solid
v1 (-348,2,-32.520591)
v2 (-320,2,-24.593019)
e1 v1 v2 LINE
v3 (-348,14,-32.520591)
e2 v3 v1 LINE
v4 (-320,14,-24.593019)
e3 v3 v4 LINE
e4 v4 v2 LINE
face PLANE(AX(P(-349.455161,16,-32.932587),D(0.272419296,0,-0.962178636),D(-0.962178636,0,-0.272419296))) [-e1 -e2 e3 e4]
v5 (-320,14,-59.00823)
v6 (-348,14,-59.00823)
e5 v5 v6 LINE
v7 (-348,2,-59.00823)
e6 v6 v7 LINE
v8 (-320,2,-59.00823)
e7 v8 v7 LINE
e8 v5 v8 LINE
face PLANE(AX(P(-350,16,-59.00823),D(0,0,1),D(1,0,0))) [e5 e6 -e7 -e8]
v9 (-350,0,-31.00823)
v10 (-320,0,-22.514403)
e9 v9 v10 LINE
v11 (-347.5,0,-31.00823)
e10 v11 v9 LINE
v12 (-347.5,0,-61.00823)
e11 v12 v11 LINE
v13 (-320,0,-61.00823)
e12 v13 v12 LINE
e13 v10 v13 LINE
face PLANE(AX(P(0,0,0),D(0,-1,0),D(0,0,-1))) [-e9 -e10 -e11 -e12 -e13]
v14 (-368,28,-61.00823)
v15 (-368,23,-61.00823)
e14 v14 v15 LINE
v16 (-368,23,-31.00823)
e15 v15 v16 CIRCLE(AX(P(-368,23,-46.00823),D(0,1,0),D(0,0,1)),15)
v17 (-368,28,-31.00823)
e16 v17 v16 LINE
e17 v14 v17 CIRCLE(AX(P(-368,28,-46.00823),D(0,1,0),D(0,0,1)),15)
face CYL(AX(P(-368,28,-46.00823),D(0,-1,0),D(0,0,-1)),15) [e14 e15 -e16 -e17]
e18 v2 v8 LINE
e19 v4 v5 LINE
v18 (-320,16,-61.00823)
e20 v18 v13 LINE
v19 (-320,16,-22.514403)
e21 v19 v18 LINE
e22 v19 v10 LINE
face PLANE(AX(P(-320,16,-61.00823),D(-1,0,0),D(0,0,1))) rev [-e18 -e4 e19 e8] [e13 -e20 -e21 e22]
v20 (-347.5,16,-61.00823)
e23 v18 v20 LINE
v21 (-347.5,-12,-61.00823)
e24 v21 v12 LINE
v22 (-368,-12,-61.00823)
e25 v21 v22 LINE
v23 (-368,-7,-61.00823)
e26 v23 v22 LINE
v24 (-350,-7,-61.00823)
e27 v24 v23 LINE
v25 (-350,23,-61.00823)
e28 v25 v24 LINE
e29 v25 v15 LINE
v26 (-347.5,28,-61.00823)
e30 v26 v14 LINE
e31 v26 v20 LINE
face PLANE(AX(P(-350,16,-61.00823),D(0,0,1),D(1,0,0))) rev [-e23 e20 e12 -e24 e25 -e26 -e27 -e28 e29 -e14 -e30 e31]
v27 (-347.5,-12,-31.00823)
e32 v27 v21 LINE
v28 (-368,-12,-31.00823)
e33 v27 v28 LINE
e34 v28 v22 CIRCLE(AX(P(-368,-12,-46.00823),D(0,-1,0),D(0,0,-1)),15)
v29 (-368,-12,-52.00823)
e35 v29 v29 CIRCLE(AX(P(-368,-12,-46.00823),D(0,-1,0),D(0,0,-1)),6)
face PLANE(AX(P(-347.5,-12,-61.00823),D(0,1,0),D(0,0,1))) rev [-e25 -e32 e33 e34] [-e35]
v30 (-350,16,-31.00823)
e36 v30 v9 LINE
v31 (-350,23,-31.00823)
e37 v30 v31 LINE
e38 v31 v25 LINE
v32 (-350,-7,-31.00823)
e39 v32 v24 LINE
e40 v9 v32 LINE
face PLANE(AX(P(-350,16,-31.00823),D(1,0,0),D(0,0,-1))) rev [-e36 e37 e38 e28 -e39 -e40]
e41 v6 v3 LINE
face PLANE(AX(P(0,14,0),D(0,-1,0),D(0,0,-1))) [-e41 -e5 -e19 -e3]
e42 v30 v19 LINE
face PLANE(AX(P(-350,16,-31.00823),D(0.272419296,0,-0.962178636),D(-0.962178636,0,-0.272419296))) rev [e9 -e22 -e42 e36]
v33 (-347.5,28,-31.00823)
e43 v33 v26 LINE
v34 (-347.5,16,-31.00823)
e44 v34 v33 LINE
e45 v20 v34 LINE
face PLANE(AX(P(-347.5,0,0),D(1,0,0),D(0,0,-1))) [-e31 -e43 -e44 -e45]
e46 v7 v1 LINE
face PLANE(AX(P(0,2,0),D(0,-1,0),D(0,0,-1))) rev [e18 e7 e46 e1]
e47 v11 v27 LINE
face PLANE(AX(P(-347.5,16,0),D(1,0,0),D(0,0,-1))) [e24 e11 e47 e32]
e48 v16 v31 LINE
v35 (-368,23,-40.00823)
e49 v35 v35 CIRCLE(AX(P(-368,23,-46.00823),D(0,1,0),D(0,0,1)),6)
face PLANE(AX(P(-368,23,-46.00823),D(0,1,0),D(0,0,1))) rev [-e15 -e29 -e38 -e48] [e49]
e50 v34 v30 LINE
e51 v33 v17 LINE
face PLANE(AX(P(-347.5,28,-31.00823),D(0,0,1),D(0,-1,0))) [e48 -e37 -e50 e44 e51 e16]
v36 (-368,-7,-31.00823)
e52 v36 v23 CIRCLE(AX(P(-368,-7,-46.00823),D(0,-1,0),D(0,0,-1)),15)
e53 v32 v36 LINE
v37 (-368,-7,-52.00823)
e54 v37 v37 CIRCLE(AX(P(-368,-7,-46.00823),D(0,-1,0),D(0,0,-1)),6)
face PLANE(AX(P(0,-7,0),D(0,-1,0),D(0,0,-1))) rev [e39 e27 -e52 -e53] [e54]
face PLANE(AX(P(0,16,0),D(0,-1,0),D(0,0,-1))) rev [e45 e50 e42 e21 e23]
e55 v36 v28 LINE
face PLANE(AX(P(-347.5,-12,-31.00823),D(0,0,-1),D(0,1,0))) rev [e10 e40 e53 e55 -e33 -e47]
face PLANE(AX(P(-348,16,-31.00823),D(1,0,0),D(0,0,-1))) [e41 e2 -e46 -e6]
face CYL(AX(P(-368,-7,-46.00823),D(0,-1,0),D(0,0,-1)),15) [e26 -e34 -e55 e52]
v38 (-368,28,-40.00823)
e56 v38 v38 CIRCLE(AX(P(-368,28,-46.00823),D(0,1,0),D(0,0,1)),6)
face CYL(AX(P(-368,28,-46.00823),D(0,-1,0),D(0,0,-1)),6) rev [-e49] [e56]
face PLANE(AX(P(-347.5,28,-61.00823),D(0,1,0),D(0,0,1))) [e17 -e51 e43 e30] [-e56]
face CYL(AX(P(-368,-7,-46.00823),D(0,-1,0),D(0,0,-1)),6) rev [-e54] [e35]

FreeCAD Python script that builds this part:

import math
import FreeCAD as App
import Part
import Sketcher
from FreeCAD import Vector


def faces_at(feature, points):
    """Names of the faces that lie closest to the given points."""
    faces = feature.Shape.Faces
    near = lambda p: min(range(len(faces)), key=lambda i: faces[i].distToShape(Part.Vertex(*p))[0])
    return sorted({f"Face{near(p) + 1}" for p in points})

doc = App.newDocument("Part")
body = doc.addObject("PartDesign::Body", "Body")

# Sketch on XZ plane
sketch1 = body.newObject("Sketcher::SketchObject", "Sketch")
sketch1.AttachmentSupport = (doc.getObject("XZ_Plane"), [""])
sketch1.MapMode = "FlatFace"
sketch1.addGeometry([
    Part.LineSegment(Vector(-350, -31, 0), Vector(-320, -23, 0)),
    Part.LineSegment(Vector(-320, -23, 0), Vector(-320, -61, 0)),
    Part.LineSegment(Vector(-320, -61, 0), Vector(-350, -61, 0)),
    Part.LineSegment(Vector(-350, -61, 0), Vector(-350, -31, 0)),
], False)
sketch1.addConstraint([
    Sketcher.Constraint("Coincident", 0, 2, 1, 1),
    Sketcher.Constraint("Coincident", 1, 2, 2, 1),
    Sketcher.Constraint("Coincident", 2, 2, 3, 1),
    Sketcher.Constraint("Coincident", 3, 2, 0, 1),
    Sketcher.Constraint("Vertical", 1),
    Sketcher.Constraint("Horizontal", 2),
    Sketcher.Constraint("Vertical", 3),
    Sketcher.Constraint("Equal", 2, 3),
    Sketcher.Constraint("DistanceX", 2, 2, 2, 1, 30.0),
    Sketcher.Constraint("DistanceX", 0, 2, -1, 1, 320.0),
    Sketcher.Constraint("Distance", 0, 31.179241),
    Sketcher.Constraint("DistanceY", 1, 2, -1, 1, 61.00823),
])
pad1 = body.newObject("PartDesign::Pad", "Pad")
pad1.Profile = sketch1
pad1.Length = 16
pad1.Reversed = True
doc.recompute()

thickness = body.newObject("PartDesign::Thickness", "Thickness")
thickness.Base = (pad1, faces_at(pad1, [(-320, 8, -41.761)]))
thickness.Value = 2
thickness.Reversed = True
thickness.Join = "Intersection"
body2 = doc.addObject("PartDesign::Body", "Body001")

# Sketch on XZ plane
sketch2 = body2.newObject("Sketcher::SketchObject", "Sketch001")
sketch2.AttachmentSupport = (doc.getObject("XZ_Plane001"), [""])
sketch2.MapMode = "FlatFace"
sketch2.AttachmentOffset = App.Placement(Vector(0, 0, -23), App.Rotation())
sketch2.addGeometry([
    Part.LineSegment(Vector(-350, -61, 0), Vector(-368, -61, 0)),  # 0
    Part.ArcOfCircle(Part.Circle(Vector(-368, -46, 0), Vector(0, 0, 1), 15), math.radians(90), math.radians(270)),  # 1
    Part.LineSegment(Vector(-368, -31, 0), Vector(-350, -31, 0)),  # 2
    Part.LineSegment(Vector(-350, -31, 0), Vector(-350, -61, 0)),  # 3
    Part.Circle(Vector(-368, -46, 0), Vector(0, 0, 1), 6),  # 4
], False)
sketch2.addConstraint([
    Sketcher.Constraint("Tangent", 0, 2, 1, 2),
    Sketcher.Constraint("Tangent", 1, 1, 2, 1),
    Sketcher.Constraint("Coincident", 2, 2, 3, 1),
    Sketcher.Constraint("Coincident", 3, 2, 0, 1),
    Sketcher.Constraint("Horizontal", 0),
    Sketcher.Constraint("Horizontal", 2),
    Sketcher.Constraint("Vertical", 3),
    Sketcher.Constraint("Coincident", 4, 3, 1, 3),
    Sketcher.Constraint("Diameter", 4, 12.0),
    Sketcher.Constraint("Radius", 1, 15.0),
    Sketcher.Constraint("DistanceX", 0, 2, 0, 1, 18.0),
    Sketcher.Constraint("DistanceX", 1, 3, -1, 1, 368.0),
    Sketcher.Constraint("DistanceY", 1, 3, -1, 1, 46.00823),
])
pad2 = body2.newObject("PartDesign::Pad", "Pad001")
pad2.Profile = sketch2
pad2.Length = 5
pad2.Reversed = True
body.AllowCompound = True
doc.recompute()

boolean = body.newObject("PartDesign::Boolean", "Boolean")
boolean.Type = "Fuse"
boolean.addObjects([body2])

# Sketch on YZ plane
sketch3 = body.newObject("Sketcher::SketchObject", "Sketch002")
sketch3.AttachmentSupport = (doc.getObject("YZ_Plane"), [""])
sketch3.MapMode = "FlatFace"
sketch3.AttachmentOffset = App.Placement(Vector(0, 0, -350), App.Rotation())
sketch3.addGeometry([
    Part.LineSegment(Vector(28, -61, 0), Vector(16, -61, 0)),
    Part.LineSegment(Vector(16, -61, 0), Vector(16, -31, 0)),
    Part.LineSegment(Vector(16, -31, 0), Vector(28, -31, 0)),
    Part.LineSegment(Vector(28, -31, 0), Vector(28, -61, 0)),
], False)
sketch3.addConstraint([
    Sketcher.Constraint("Coincident", 0, 2, 1, 1),
    Sketcher.Constraint("Coincident", 1, 2, 2, 1),
    Sketcher.Constraint("Coincident", 2, 2, 3, 1),
    Sketcher.Constraint("Coincident", 3, 2, 0, 1),
    Sketcher.Constraint("Horizontal", 0),
    Sketcher.Constraint("Vertical", 1),
    Sketcher.Constraint("Horizontal", 2),
    Sketcher.Constraint("Vertical", 3),
    Sketcher.Constraint("DistanceX", 0, 2, 0, 1, 12.0),
    Sketcher.Constraint("DistanceY", 1, 1, 1, 2, 30.0),
    Sketcher.Constraint("DistanceX", -1, 1, 0, 2, 16.0),
    Sketcher.Constraint("DistanceY", 0, 2, -1, 1, 61.00823),
])
pad3 = body.newObject("PartDesign::Pad", "Pad002")
pad3.Profile = sketch3
pad3.Length = 2.5
doc.recompute()

datumplane = body.newObject("PartDesign::Plane", "DatumPlane")
datumplane.AttachmentSupport = (doc.getObject("XZ_Plane"), [""])
datumplane.MapMode = "FlatFace"
datumplane.AttachmentOffset = App.Placement(Vector(0, 0, -8), App.Rotation())
mirrored = body.newObject("PartDesign::Mirrored", "Mirrored")
mirrored.Originals = [pad3]
mirrored.MirrorPlane = (datumplane, [""])
body.Tip = mirrored

# Sketch on XZ plane
sketch4 = body.newObject("Sketcher::SketchObject", "Sketch003")
sketch4.AttachmentSupport = (doc.getObject("XZ_Plane"), [""])
sketch4.MapMode = "FlatFace"
sketch4.AttachmentOffset = App.Placement(Vector(0, 0, 12), App.Rotation())
sketch4.addGeometry([
    Part.LineSegment(Vector(-350, -61, 0), Vector(-350, -31, 0)),  # 0
    Part.LineSegment(Vector(-350, -31, 0), Vector(-368, -31, 0)),  # 1
    Part.ArcOfCircle(Part.Circle(Vector(-368, -46, 0), Vector(0, 0, 1), 15), math.radians(90), math.radians(270)),  # 2
    Part.LineSegment(Vector(-368, -61, 0), Vector(-350, -61, 0)),  # 3
    Part.Circle(Vector(-368, -46, 0), Vector(0, 0, 1), 6),  # 4
], False)
sketch4.addConstraint([
    Sketcher.Constraint("Coincident", 0, 2, 1, 1),
    Sketcher.Constraint("Tangent", 1, 2, 2, 1),
    Sketcher.Constraint("Tangent", 2, 2, 3, 1),
    Sketcher.Constraint("Coincident", 3, 2, 0, 1),
    Sketcher.Constraint("Vertical", 0),
    Sketcher.Constraint("Horizontal", 1),
    Sketcher.Constraint("Horizontal", 3),
    Sketcher.Constraint("Coincident", 4, 3, 2, 3),
    Sketcher.Constraint("Diameter", 4, 12.0),
    Sketcher.Constraint("Radius", 2, 15.0),
    Sketcher.Constraint("DistanceX", 1, 2, 1, 1, 18.0),
    Sketcher.Constraint("DistanceX", 2, 3, -1, 1, 368.0),
    Sketcher.Constraint("DistanceY", 2, 3, -1, 1, 46.00823),
])
pad4 = body.newObject("PartDesign::Pad", "Pad003")
pad4.Profile = sketch4
pad4.Length = 5
pad4.Reversed = True

doc.recompute()
